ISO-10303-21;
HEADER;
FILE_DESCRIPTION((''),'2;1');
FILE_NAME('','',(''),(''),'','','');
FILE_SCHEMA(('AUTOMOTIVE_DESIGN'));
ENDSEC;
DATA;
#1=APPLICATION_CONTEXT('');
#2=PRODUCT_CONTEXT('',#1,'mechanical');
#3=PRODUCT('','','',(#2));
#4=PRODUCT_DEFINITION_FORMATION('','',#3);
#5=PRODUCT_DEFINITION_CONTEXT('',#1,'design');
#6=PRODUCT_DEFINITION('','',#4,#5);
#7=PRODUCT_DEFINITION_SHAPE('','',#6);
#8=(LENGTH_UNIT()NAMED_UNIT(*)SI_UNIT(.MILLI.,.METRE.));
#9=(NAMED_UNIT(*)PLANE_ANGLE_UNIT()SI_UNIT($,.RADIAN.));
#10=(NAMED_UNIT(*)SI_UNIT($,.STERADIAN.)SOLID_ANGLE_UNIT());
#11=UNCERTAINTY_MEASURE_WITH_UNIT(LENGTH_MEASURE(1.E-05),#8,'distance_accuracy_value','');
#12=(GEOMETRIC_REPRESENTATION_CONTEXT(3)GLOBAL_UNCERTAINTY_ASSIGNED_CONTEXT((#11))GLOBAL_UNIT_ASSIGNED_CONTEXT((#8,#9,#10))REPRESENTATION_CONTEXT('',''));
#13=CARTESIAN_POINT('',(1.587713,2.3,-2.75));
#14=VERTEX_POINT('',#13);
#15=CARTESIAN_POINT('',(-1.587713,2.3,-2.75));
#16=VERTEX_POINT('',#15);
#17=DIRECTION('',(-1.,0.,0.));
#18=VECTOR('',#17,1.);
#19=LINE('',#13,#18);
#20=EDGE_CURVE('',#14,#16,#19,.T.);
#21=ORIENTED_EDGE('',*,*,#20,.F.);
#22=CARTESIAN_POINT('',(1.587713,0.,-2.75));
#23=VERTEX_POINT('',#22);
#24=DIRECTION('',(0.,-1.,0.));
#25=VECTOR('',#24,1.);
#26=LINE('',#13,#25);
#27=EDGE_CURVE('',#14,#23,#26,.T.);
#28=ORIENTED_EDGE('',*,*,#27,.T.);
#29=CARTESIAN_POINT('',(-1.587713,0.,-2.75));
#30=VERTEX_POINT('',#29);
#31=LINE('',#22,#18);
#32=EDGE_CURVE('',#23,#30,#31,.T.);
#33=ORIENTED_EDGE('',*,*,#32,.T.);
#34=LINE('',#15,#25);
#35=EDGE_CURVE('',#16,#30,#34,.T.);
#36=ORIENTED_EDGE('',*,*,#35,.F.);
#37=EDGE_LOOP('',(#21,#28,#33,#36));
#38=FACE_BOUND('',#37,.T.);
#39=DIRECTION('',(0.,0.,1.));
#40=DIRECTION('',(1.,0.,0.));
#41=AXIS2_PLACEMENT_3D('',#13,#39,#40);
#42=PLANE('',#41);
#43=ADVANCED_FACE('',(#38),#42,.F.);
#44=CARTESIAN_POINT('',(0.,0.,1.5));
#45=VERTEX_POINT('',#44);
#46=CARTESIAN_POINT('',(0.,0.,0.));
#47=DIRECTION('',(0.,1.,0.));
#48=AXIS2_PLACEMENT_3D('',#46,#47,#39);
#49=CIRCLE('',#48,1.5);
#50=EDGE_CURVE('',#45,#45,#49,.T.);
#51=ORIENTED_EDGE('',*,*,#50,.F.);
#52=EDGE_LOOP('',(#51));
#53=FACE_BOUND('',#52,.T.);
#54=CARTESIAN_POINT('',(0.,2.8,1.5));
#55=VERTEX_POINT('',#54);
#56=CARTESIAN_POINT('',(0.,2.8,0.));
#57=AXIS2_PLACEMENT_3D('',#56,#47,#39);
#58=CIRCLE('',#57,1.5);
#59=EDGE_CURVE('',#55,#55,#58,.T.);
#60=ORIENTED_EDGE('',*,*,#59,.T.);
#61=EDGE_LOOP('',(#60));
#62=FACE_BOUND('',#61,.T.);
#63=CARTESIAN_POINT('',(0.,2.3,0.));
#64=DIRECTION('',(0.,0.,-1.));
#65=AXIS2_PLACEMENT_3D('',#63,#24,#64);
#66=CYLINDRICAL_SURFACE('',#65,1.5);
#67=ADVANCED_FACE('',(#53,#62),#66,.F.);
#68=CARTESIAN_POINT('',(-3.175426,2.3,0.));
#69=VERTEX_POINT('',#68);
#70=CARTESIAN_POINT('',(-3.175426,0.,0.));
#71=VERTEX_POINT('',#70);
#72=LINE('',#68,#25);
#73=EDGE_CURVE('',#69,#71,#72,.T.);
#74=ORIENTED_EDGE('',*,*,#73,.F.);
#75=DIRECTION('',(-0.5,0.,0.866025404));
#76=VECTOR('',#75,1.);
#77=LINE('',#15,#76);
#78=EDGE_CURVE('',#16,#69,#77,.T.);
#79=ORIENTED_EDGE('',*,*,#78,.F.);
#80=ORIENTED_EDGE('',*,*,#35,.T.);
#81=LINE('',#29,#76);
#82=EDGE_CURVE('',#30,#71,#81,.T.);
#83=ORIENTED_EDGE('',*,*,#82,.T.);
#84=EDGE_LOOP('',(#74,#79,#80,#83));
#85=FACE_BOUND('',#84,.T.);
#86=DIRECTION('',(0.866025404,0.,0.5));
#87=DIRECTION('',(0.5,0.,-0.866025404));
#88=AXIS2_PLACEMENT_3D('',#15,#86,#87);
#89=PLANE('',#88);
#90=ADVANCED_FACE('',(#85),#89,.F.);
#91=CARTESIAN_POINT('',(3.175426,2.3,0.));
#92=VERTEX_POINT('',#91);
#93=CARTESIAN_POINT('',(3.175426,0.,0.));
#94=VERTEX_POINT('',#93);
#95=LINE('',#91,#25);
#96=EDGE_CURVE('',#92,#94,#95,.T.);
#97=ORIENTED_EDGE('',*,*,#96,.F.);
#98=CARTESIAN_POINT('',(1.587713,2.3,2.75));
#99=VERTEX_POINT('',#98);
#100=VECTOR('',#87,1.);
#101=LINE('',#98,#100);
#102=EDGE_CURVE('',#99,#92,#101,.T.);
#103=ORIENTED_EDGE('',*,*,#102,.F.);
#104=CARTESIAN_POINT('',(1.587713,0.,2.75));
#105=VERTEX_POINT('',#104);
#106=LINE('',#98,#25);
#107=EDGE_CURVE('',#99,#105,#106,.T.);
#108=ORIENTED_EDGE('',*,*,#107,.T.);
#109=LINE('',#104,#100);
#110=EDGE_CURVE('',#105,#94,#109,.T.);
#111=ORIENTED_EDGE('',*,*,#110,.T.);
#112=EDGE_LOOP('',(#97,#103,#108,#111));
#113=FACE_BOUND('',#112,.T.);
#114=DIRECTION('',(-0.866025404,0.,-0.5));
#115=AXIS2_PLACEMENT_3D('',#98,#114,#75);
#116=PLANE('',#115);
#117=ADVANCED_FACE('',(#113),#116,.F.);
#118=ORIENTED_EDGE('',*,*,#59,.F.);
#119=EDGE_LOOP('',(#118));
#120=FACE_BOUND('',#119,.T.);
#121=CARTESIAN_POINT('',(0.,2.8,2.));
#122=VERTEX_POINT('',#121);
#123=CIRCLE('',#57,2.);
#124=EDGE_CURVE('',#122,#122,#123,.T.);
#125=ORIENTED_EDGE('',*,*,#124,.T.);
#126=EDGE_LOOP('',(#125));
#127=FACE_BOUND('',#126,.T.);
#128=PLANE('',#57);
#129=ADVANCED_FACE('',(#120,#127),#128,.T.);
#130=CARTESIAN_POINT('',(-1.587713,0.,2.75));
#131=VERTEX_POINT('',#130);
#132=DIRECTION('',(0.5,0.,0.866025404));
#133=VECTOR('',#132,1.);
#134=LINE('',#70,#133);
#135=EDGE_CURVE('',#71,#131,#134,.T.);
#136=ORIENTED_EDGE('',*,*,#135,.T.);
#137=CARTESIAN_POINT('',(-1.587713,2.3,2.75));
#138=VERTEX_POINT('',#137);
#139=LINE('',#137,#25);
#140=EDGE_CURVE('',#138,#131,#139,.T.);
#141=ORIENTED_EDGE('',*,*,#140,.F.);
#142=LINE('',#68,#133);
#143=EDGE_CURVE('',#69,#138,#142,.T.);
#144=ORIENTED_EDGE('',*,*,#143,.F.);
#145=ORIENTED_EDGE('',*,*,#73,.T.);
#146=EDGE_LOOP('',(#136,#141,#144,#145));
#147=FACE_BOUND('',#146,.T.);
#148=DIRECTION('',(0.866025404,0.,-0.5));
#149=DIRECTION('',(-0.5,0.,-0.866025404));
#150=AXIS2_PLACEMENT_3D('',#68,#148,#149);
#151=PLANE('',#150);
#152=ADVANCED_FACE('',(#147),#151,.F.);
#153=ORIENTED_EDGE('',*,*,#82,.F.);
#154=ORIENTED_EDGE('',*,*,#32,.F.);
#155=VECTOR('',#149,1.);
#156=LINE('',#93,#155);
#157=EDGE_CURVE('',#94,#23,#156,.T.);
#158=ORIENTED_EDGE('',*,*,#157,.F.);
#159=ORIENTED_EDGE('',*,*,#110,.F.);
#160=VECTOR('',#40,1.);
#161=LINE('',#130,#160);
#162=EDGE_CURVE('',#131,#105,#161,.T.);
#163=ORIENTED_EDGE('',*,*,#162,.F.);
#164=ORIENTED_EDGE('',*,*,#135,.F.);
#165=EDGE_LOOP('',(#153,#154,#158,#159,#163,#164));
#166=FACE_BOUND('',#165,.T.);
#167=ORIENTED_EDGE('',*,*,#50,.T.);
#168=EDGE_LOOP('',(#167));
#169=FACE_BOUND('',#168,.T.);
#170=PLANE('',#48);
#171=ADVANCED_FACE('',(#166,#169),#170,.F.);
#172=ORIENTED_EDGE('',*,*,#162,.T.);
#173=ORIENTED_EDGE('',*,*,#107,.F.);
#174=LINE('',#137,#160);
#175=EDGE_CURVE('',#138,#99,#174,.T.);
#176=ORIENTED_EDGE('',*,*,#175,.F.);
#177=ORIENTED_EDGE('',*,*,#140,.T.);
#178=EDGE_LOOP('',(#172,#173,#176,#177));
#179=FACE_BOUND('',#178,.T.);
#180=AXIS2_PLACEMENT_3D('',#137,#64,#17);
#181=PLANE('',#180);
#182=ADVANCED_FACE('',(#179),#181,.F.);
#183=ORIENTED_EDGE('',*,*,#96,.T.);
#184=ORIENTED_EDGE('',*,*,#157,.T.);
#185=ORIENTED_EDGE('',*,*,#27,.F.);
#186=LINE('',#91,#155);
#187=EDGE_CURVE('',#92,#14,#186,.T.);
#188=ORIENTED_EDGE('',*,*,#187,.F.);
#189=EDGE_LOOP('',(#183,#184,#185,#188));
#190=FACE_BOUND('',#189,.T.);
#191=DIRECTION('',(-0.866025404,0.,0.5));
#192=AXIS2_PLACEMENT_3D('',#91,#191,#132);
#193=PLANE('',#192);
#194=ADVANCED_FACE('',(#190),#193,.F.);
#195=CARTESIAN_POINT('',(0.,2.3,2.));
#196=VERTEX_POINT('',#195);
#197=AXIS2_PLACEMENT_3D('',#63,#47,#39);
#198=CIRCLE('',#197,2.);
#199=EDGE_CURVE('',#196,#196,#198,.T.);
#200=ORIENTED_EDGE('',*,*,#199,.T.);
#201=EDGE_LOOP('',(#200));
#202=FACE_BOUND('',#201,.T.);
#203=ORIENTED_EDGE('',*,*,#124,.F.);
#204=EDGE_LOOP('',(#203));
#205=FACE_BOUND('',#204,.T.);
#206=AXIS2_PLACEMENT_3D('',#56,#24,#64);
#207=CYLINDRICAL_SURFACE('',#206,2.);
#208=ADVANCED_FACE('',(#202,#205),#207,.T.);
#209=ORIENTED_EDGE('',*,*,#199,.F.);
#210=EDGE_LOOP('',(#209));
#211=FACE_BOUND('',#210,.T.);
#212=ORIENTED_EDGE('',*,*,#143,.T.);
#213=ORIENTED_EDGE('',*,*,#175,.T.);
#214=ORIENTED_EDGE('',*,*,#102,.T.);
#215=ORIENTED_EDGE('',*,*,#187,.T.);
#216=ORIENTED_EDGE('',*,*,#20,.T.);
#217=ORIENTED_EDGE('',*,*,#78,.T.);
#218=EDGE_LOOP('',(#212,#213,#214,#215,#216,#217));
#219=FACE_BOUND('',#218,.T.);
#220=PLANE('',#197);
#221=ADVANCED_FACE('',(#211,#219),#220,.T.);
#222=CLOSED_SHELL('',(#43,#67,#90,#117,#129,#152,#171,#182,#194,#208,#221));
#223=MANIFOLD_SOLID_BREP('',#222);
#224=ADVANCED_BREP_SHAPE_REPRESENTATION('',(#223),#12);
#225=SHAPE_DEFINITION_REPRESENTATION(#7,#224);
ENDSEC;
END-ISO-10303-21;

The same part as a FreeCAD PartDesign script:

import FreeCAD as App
import Part
import Sketcher
Q = App.Units.Quantity

doc = App.newDocument("Part")
body = doc.addObject("PartDesign::Body", "Body")

# Sketch on XZ plane
sketch1 = body.newObject("Sketcher::SketchObject", "Sketch")
sketch1.AttachmentSupport = (doc.getObject("XZ_Plane"), [""])
sketch1.MapMode = "FlatFace"
sketch1.addGeometry([
    Part.LineSegment(App.Vector(3.175426, 0, 0), App.Vector(1.587713, -2.75, 0)),  # 0
    Part.LineSegment(App.Vector(1.587713, -2.75, 0), App.Vector(-1.587713, -2.75, 0)),  # 1
    Part.LineSegment(App.Vector(-1.587713, -2.75, 0), App.Vector(-3.175426, 0, 0)),  # 2
    Part.LineSegment(App.Vector(-3.175426, 0, 0), App.Vector(-1.587713, 2.75, 0)),  # 3
    Part.LineSegment(App.Vector(-1.587713, 2.75, 0), App.Vector(1.587713, 2.75, 0)),  # 4
    Part.LineSegment(App.Vector(1.587713, 2.75, 0), App.Vector(3.175426, 0, 0)),  # 5
    Part.Circle(App.Vector(0, 0, 0), App.Vector(0, 0, 1), 1.5),  # 6
], False)
sketch1.addConstraint([
    Sketcher.Constraint("Coincident", 0, 2, 1, 1),
    Sketcher.Constraint("Coincident", 1, 2, 2, 1),
    Sketcher.Constraint("Coincident", 2, 2, 3, 1),
    Sketcher.Constraint("Coincident", 3, 2, 4, 1),
    Sketcher.Constraint("Coincident", 4, 2, 5, 1),
    Sketcher.Constraint("Coincident", 5, 2, 0, 1),
    Sketcher.Constraint("Horizontal", 1),
    Sketcher.Constraint("Horizontal", 4),
    Sketcher.Constraint("Coincident", 6, 3, -1, 1),
    Sketcher.Constraint("Symmetric", 0, 2, 3, 2, -1, 1),
    Sketcher.Constraint("Symmetric", 2, 2, 5, 2, -1, 1),
    Sketcher.Constraint("PointOnObject", 2, 2, -1),
    Sketcher.Constraint("Parallel", 2, 5),
    Sketcher.Constraint("Vertical", 1, 2, 3, 2),
    Sketcher.Constraint("Diameter", 6, 3.0),
    Sketcher.Constraint("Angle", 0, Q("-120 deg")),
    Sketcher.Constraint("DistanceY", 1, 2, 3, 2, 5.5),
    Sketcher.Constraint("DistanceX", 1, 2, 1, 1, 3.175426),
])
pad1 = body.newObject("PartDesign::Pad", "Pad")
pad1.Profile = sketch1
pad1.Length = 2.3
pad1.Reversed = True

# Sketch on XZ plane
sketch2 = body.newObject("Sketcher::SketchObject", "Sketch001")
sketch2.AttachmentSupport = (doc.getObject("XZ_Plane"), [""])
sketch2.MapMode = "FlatFace"
sketch2.AttachmentOffset = App.Placement(App.Vector(0, 0, -2.3), App.Rotation())
sketch2.addGeometry([
    Part.Circle(App.Vector(0, 0, 0), App.Vector(0, 0, 1), 2),
    Part.Circle(App.Vector(0, 0, 0), App.Vector(0, 0, 1), 1.5),
], False)
sketch2.addConstraint([
    Sketcher.Constraint("Coincident", 0, 3, -1, 1),
    Sketcher.Constraint("Coincident", 1, 3, -1, 1),
    Sketcher.Constraint("Diameter", 0, 4.0),
    Sketcher.Constraint("Diameter", 1, 3.0),
])
pad2 = body.newObject("PartDesign::Pad", "Pad001")
pad2.Profile = sketch2
pad2.Length = 0.5
pad2.Reversed = True

doc.recompute()
